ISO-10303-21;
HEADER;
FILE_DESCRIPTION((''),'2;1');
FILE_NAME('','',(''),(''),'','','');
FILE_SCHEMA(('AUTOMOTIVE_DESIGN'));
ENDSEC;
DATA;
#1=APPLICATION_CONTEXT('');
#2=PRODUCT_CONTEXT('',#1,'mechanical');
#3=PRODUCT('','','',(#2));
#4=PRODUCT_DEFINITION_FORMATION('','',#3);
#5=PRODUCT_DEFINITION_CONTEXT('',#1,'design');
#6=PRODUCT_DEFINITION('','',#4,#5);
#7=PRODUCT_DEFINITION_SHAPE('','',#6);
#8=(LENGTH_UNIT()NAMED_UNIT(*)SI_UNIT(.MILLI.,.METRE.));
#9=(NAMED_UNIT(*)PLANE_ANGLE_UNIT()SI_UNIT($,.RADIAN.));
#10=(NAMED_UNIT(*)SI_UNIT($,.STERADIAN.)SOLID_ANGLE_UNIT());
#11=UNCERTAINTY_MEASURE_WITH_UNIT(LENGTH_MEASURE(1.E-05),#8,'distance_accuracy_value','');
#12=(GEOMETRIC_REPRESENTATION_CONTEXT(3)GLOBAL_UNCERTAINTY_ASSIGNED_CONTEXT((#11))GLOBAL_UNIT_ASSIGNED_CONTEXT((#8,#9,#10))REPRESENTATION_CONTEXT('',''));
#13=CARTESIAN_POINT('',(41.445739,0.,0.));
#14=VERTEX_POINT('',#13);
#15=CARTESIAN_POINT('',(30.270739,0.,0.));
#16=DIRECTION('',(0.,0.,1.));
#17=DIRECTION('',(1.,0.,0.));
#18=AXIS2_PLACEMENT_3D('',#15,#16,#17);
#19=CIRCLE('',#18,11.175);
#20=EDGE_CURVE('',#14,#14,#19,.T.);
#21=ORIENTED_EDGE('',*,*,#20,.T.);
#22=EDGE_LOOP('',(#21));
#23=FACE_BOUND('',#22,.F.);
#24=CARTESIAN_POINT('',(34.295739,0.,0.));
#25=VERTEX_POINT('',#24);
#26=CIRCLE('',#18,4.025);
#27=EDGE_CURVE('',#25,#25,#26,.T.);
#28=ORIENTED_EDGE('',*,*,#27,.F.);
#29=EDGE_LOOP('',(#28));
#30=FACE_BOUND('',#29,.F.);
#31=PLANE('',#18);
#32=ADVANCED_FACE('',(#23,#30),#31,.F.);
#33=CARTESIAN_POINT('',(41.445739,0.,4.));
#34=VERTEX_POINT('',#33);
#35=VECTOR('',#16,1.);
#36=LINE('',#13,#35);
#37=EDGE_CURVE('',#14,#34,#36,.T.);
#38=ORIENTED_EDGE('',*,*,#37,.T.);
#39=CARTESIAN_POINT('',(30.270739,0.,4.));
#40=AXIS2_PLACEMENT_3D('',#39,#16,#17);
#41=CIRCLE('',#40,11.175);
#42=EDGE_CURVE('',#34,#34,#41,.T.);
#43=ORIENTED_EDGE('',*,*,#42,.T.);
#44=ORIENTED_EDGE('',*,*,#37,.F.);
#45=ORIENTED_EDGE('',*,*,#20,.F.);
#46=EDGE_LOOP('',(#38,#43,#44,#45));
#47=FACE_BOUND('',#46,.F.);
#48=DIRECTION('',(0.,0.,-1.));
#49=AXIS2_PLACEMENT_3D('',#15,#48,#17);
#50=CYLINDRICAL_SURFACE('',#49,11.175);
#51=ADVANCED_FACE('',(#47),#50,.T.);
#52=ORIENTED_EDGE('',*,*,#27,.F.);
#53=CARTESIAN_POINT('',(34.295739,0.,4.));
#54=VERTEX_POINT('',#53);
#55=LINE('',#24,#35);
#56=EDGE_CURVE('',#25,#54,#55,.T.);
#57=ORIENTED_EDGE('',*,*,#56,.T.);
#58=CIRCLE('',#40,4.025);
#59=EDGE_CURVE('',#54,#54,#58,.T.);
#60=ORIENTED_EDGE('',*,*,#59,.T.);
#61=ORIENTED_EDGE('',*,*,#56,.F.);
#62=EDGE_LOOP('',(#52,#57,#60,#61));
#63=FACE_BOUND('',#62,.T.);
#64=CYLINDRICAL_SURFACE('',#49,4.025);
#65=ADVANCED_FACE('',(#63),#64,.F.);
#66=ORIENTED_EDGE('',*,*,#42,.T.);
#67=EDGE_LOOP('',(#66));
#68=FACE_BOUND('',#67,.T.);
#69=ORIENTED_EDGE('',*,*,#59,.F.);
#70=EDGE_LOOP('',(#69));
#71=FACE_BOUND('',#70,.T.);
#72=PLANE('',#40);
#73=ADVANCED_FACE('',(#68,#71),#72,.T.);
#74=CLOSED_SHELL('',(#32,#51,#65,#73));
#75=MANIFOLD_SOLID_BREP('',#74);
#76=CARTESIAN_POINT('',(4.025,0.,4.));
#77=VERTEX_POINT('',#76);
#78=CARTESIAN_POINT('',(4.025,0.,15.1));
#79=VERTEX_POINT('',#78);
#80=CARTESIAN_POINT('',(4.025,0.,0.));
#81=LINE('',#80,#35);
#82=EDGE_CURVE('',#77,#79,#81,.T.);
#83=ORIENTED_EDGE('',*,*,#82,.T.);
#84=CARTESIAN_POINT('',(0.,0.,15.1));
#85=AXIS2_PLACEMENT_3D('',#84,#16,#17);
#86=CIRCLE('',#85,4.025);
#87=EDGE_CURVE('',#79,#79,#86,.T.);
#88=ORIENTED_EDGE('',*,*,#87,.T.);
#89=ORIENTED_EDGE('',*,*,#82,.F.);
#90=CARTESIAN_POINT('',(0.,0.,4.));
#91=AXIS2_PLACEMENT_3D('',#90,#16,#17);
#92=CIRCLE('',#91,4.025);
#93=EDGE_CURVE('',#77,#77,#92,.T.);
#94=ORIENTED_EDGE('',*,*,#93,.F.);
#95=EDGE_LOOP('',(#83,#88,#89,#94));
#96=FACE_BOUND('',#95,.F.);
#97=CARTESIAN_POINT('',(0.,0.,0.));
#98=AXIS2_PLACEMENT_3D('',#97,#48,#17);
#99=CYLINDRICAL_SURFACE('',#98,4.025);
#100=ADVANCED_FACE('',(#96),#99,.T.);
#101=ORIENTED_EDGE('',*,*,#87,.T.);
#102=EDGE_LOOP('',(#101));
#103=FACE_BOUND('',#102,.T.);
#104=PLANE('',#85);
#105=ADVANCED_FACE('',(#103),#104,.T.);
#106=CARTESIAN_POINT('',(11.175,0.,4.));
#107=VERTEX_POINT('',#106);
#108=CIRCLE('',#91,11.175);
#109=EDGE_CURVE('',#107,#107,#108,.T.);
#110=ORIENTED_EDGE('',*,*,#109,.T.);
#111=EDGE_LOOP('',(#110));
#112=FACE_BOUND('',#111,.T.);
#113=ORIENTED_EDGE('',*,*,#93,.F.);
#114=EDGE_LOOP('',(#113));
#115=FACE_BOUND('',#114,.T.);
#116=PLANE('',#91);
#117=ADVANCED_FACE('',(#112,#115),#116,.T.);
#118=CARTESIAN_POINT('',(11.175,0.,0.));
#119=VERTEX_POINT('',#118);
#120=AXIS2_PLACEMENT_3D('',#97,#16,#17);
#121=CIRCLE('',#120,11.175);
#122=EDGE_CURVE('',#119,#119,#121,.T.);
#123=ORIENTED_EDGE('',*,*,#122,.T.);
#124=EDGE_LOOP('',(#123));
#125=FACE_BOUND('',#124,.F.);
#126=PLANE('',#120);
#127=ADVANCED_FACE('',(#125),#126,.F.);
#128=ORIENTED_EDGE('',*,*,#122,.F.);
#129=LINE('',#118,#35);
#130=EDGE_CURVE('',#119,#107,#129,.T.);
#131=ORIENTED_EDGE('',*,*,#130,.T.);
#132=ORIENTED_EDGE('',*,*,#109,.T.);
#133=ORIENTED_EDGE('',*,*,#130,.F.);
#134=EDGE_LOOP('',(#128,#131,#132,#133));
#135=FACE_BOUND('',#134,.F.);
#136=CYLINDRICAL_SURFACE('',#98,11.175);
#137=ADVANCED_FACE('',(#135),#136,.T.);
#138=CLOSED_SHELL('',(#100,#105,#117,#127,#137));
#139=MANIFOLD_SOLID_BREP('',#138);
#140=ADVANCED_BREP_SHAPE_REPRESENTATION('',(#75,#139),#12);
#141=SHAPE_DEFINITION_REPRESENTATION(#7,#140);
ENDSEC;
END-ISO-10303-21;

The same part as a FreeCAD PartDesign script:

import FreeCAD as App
import Part
import Sketcher
from FreeCAD import Vector

doc = App.newDocument("Part")
body = doc.addObject("PartDesign::Body", "Body")

# Sketch on XY plane
sketch1 = doc.addObject("Sketcher::SketchObject", "Sketch")
body.addObject(sketch1)
sketch1.AttachmentSupport = (doc.XY_Plane, [""])
sketch1.MapMode = "FlatFace"
sketch1.addGeometry(Part.Circle(Vector(0, 0, 0), Vector(0, 0, 1), 11.2), False)
sketch1.addGeometry(Part.Circle(Vector(0, 0, 0), Vector(0, 0, 1), 4), False)
sketch1.addConstraint(Sketcher.Constraint("Coincident", 0, 3, -1, 1))
sketch1.addConstraint(Sketcher.Constraint("Coincident", 1, 3, -1, 1))
sketch1.addConstraint(Sketcher.Constraint("Diameter", 0, 22.35))
sketch1.addConstraint(Sketcher.Constraint("Diameter", 1, 8.05))
pad1 = doc.addObject("PartDesign::Pad", "Pad")
body.addObject(pad1)
pad1.Profile = sketch1
pad1.Length = 4

# Sketch on XY plane
sketch2 = doc.addObject("Sketcher::SketchObject", "Sketch001")
body.addObject(sketch2)
sketch2.AttachmentSupport = (doc.XY_Plane, [""])
sketch2.MapMode = "FlatFace"
sketch2.addGeometry(Part.Circle(Vector(0, 0, 0), Vector(0, 0, 1), 4), False)
sketch2.addConstraint(Sketcher.Constraint("Coincident", 0, 3, -1, 1))
sketch2.addConstraint(Sketcher.Constraint("Diameter", 0, 8.05))
pad2 = doc.addObject("PartDesign::Pad", "Pad001")
body.addObject(pad2)
pad2.Profile = sketch2
pad2.Length = 15.1
body2 = doc.addObject("PartDesign::Body", "Body001")

# Sketch on XY plane
sketch3 = doc.addObject("Sketcher::SketchObject", "Sketch002")
body2.addObject(sketch3)
sketch3.AttachmentSupport = (doc.getObject("XY_Plane001"), [""])
sketch3.MapMode = "FlatFace"
sketch3.addGeometry(Part.Circle(Vector(30.3, 0, 0), Vector(0, 0, 1), 11.2), False)
sketch3.addGeometry(Part.Circle(Vector(30.3, 0, 0), Vector(0, 0, 1), 4), False)
sketch3.addConstraint(Sketcher.Constraint("Coincident", 1, 3, 0, 3))
sketch3.addConstraint(Sketcher.Constraint("PointOnObject", 0, 3, -1))
sketch3.addConstraint(Sketcher.Constraint("Diameter", 0, 22.35))
sketch3.addConstraint(Sketcher.Constraint("Diameter", 1, 8.05))
sketch3.addConstraint(Sketcher.Constraint("DistanceX", -1, 1, 0, 3, 30.270739))
pad3 = doc.addObject("PartDesign::Pad", "Pad002")
body2.addObject(pad3)
pad3.Profile = sketch3
pad3.Length = 4

doc.recompute()
